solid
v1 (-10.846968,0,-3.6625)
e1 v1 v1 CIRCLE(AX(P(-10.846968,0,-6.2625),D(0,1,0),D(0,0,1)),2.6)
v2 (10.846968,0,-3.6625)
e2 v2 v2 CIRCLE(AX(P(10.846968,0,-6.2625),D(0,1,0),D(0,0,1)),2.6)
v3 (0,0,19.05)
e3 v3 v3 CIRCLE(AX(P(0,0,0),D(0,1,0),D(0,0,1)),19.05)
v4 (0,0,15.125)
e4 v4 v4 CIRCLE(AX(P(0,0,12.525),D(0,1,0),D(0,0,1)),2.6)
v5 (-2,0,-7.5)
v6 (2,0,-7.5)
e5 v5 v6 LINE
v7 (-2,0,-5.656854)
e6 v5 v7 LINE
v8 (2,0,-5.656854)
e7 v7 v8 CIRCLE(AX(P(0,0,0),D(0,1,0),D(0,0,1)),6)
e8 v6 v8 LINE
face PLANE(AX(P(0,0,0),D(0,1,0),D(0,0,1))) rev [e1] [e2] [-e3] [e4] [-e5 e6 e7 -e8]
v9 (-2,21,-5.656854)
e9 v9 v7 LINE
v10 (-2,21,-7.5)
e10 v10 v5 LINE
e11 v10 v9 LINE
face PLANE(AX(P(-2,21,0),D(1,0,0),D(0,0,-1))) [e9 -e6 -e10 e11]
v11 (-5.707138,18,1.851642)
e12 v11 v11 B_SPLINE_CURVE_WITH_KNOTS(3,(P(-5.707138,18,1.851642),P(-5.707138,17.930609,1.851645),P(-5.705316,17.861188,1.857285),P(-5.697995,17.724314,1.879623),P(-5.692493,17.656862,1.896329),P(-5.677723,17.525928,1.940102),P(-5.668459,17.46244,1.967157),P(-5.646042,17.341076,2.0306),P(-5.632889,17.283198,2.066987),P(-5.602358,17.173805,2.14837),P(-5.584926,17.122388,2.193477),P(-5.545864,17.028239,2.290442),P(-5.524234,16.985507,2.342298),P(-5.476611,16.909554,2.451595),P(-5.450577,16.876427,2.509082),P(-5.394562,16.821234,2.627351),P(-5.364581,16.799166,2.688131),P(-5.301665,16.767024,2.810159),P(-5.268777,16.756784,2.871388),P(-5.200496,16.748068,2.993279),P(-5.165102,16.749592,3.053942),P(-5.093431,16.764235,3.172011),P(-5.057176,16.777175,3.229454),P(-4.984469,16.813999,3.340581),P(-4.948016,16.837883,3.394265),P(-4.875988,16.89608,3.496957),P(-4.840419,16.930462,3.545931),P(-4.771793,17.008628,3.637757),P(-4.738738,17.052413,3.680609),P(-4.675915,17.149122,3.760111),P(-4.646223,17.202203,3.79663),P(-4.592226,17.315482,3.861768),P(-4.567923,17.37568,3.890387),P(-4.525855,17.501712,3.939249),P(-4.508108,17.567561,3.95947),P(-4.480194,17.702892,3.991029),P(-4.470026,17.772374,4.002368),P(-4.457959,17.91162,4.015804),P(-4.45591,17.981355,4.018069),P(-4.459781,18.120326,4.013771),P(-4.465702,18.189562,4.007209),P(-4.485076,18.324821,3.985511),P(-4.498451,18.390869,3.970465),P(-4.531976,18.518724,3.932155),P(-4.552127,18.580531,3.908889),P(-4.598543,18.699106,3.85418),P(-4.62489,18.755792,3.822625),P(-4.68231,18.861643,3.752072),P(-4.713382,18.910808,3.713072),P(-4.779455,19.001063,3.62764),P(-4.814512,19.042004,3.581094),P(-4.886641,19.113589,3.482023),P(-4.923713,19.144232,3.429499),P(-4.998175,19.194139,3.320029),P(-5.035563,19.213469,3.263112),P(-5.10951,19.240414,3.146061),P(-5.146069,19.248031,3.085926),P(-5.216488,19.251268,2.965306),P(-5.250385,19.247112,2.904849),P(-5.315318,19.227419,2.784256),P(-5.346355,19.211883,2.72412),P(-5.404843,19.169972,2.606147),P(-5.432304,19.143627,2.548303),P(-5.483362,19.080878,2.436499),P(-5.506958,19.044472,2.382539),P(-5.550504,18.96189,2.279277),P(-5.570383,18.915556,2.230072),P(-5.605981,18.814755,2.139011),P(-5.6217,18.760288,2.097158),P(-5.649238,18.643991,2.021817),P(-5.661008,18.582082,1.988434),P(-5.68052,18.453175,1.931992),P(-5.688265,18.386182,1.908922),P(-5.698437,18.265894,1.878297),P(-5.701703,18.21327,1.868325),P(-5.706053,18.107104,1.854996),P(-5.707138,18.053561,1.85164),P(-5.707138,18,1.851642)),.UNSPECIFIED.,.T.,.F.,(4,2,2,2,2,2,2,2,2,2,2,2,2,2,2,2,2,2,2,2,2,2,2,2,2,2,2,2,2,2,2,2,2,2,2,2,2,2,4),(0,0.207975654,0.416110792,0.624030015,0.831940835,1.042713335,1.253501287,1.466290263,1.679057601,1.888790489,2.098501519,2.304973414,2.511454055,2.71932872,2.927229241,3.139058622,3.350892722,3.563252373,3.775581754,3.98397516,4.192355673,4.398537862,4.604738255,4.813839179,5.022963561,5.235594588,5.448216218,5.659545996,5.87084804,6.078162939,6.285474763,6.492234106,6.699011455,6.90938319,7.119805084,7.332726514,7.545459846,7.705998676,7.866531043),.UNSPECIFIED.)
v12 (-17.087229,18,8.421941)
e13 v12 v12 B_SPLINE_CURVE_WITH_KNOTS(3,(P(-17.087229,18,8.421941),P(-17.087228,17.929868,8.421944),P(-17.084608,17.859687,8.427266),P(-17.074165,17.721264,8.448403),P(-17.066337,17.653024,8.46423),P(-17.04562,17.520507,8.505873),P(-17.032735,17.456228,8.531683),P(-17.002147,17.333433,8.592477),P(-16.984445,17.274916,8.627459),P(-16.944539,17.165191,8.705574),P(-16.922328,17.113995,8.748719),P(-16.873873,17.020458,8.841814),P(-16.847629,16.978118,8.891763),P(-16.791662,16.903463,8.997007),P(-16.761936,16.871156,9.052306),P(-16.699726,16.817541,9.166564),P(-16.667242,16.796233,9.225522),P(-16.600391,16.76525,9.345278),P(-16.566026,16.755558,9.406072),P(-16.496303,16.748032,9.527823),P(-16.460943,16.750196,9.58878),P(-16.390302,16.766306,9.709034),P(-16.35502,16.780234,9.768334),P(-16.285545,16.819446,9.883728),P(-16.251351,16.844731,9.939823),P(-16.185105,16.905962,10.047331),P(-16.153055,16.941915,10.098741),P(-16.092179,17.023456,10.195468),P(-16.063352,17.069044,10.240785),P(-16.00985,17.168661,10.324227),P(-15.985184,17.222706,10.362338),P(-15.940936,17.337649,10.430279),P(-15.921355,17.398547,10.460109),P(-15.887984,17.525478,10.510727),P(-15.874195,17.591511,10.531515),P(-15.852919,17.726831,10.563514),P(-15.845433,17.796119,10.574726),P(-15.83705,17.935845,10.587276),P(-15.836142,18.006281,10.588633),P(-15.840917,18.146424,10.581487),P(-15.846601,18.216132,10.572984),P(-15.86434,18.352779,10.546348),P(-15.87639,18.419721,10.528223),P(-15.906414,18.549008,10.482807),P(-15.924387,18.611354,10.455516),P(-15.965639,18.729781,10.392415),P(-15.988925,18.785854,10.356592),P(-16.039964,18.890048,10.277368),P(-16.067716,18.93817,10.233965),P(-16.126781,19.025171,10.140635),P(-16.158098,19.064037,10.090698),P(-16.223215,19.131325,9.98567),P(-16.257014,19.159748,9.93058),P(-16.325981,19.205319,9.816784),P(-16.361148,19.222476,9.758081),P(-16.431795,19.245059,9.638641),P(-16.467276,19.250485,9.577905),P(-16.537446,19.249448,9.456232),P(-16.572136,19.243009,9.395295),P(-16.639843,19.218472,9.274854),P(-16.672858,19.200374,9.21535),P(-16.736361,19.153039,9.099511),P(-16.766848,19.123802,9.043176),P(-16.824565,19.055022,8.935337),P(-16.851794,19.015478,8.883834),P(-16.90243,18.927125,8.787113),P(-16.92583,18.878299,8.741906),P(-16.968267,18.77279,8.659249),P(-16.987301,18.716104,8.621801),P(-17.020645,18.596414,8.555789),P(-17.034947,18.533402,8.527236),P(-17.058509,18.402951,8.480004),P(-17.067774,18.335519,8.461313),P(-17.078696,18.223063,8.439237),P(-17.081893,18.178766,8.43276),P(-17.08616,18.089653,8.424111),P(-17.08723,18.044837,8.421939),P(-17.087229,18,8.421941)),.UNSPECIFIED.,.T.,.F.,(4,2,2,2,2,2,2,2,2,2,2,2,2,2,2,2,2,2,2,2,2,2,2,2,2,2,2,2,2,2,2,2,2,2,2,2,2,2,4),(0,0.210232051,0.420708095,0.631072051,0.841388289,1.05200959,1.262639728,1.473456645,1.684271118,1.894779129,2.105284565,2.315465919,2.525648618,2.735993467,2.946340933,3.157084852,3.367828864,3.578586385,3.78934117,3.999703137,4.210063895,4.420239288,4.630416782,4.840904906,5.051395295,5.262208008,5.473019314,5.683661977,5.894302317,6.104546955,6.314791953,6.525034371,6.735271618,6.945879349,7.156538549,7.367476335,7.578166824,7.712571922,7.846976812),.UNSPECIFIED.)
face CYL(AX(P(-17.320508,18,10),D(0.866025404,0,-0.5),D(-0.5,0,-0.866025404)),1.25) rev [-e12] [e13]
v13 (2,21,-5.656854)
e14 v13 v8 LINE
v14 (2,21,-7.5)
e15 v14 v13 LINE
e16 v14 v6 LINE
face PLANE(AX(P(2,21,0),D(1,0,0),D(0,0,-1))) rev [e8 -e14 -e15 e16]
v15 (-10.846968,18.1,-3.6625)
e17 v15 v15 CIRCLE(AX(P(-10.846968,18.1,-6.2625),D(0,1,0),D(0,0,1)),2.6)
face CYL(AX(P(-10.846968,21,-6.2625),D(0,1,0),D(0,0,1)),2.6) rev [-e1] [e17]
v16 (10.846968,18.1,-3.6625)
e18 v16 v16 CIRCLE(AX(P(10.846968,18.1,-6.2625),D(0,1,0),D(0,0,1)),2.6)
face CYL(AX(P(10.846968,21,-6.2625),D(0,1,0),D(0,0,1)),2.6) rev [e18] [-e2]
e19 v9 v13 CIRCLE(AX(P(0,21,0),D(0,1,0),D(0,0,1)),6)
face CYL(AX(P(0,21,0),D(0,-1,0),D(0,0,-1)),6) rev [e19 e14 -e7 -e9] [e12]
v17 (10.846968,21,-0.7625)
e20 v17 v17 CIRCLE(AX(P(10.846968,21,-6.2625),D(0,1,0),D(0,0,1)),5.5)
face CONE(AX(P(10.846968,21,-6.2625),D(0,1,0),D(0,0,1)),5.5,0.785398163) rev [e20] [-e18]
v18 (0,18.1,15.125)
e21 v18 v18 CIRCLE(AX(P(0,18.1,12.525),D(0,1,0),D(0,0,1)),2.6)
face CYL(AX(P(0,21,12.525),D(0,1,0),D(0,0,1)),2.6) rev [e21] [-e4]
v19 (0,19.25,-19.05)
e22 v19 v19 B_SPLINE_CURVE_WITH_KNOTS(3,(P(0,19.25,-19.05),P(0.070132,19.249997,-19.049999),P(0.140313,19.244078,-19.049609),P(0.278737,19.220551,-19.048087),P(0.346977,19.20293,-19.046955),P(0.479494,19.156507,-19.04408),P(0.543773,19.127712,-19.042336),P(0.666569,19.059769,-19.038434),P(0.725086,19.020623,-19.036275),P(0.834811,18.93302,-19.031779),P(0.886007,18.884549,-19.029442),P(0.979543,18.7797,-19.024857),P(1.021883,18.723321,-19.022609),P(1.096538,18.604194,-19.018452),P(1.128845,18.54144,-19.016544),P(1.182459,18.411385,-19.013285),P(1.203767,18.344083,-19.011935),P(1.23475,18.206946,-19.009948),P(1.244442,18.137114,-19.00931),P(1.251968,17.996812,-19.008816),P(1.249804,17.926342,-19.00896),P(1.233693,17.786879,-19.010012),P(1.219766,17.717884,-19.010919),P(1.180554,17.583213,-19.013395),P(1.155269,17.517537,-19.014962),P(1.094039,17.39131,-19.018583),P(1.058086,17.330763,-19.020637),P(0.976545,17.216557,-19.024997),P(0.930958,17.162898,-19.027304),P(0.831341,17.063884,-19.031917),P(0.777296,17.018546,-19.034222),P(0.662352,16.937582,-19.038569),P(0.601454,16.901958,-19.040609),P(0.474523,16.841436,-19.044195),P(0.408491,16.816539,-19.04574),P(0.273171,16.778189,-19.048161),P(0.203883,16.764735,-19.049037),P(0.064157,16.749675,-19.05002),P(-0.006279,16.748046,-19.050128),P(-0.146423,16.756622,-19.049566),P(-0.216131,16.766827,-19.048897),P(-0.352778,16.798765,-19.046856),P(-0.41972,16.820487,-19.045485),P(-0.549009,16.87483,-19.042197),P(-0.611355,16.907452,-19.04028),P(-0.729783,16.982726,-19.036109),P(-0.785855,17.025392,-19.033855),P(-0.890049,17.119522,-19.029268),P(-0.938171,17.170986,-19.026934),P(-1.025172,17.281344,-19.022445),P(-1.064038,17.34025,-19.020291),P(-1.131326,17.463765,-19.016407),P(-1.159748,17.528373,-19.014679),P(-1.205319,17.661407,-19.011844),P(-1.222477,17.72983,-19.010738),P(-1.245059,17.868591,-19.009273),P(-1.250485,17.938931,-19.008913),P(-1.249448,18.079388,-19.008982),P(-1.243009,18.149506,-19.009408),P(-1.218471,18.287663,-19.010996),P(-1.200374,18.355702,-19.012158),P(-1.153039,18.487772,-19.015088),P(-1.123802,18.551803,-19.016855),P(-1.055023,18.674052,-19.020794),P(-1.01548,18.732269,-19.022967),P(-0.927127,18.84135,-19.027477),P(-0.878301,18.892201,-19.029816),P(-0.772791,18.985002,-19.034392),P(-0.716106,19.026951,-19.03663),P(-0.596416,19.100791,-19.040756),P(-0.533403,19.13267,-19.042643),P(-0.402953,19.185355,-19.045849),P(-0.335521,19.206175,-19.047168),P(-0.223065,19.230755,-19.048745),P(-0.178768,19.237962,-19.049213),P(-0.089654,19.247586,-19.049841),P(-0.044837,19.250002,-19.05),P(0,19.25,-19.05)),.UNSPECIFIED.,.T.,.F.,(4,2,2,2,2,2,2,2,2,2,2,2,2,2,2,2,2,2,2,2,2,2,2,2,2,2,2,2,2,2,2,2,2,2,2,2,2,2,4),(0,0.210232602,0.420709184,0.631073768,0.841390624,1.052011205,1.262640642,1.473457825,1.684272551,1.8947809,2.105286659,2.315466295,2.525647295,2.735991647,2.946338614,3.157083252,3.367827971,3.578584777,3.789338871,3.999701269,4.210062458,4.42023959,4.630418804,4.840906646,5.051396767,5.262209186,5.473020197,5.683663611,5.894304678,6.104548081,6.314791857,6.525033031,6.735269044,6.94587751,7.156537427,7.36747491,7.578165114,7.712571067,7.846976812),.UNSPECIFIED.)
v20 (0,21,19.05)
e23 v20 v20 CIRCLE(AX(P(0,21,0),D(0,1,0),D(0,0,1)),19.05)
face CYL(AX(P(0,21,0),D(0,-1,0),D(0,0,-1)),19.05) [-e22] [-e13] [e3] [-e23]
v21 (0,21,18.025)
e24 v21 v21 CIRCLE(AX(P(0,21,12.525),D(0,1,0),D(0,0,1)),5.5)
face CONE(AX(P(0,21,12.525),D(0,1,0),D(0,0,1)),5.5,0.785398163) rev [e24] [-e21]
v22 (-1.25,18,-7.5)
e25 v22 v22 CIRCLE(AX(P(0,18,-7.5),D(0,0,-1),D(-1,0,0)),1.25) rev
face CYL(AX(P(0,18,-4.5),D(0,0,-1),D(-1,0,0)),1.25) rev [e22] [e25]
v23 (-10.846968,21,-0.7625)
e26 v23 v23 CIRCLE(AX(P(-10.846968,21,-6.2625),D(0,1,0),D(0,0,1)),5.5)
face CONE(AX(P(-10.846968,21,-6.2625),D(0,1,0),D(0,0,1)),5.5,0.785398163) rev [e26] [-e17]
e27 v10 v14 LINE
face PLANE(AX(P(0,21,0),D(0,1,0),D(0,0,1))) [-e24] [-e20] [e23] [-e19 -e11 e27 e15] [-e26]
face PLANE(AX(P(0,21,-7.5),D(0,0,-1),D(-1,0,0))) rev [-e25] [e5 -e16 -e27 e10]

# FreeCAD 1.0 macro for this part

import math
import FreeCAD as App
import Part
import Sketcher
from FreeCAD import Vector

doc = App.newDocument("Part")
body = doc.addObject("PartDesign::Body", "Body")

sketch1 = body.newObject("Sketcher::SketchObject", "Sketch")
sketch1.AttachmentSupport = (doc.getObject("XZ_Plane"), [""])
sketch1.MapMode = "FlatFace"
sketch1.addGeometry(Part.Circle(Vector(0, 0, 0), Vector(0, 0, 1), 19.05), False)
sketch1.addGeometry(Part.ArcOfCircle(Part.Circle(Vector(0, 0, 0), Vector(0, 0, 1), 6), math.radians(0), math.radians(250.528779)), False)
sketch1.addGeometry(Part.LineSegment(Vector(-2, -5.656854, 0), Vector(-2, -7.5, 0)), False)
sketch1.addGeometry(Part.LineSegment(Vector(-2, -7.5, 0), Vector(2, -7.5, 0)), False)
sketch1.addGeometry(Part.LineSegment(Vector(2, -7.5, 0), Vector(2, -5.656854, 0)), False)
sketch1.addGeometry(Part.ArcOfCircle(Part.Circle(Vector(0, 0, 0), Vector(0, 0, 1), 6), math.radians(-70.528779), math.radians(0)), False)
sketch1.addConstraint(Sketcher.Constraint("Coincident", 1, 2, 2, 1))
sketch1.addConstraint(Sketcher.Constraint("Coincident", 2, 2, 3, 1))
sketch1.addConstraint(Sketcher.Constraint("Coincident", 3, 2, 4, 1))
sketch1.addConstraint(Sketcher.Constraint("Coincident", 4, 2, 5, 1))
sketch1.addConstraint(Sketcher.Constraint("Tangent", 5, 2, 1, 1))
sketch1.addConstraint(Sketcher.Constraint("Vertical", 2))
sketch1.addConstraint(Sketcher.Constraint("Horizontal", 3))
sketch1.addConstraint(Sketcher.Constraint("Vertical", 4))
sketch1.addConstraint(Sketcher.Constraint("Coincident", 0, 3, -1, 1))
sketch1.addConstraint(Sketcher.Constraint("Coincident", 1, 3, -1, 1))
sketch1.addConstraint(Sketcher.Constraint("Equal", 1, 5))
sketch1.addConstraint(Sketcher.Constraint("PointOnObject", 5, 2, -1))
sketch1.addConstraint(Sketcher.Constraint("Horizontal", 1, 2, 4, 2))
sketch1.addConstraint(Sketcher.Constraint("Radius", 1, 6.0))
sketch1.addConstraint(Sketcher.Constraint("Diameter", 0, 38.1))
sketch1.addConstraint(Sketcher.Constraint("DistanceX", 3, 1, 3, 2, 4.0))
sketch1.addConstraint(Sketcher.Constraint("DistanceY", 2, 2, -1, 1, 7.5))
pad1 = body.newObject("PartDesign::Pad", "Pad")
pad1.Profile = sketch1
pad1.Length = 21
pad1.Reversed = True

sketch2 = body.newObject("Sketcher::SketchObject", "Sketch001")
sketch2.AttachmentSupport = (doc.getObject("XY_Plane"), [""])
sketch2.MapMode = "FlatFace"
sketch2.AttachmentOffset = App.Placement(Vector(0, 0, -7.5), App.Rotation())
sketch2.addGeometry(Part.Circle(Vector(0, 18, 0), Vector(0, 0, 1), 1.25), False)
sketch2.addConstraint(Sketcher.Constraint("PointOnObject", 0, 3, -2))
sketch2.addConstraint(Sketcher.Constraint("Diameter", 0, 2.5))
sketch2.addConstraint(Sketcher.Constraint("DistanceY", -1, 1, 0, 3, 18.0))
pocket1 = body.newObject("PartDesign::Pocket", "Pocket")
pocket1.Profile = sketch2
pocket1.Type = "TwoLengths"
pocket1.Length = 3
pocket1.Length2 = 15
pocket1.Reversed = True

sketch3 = body.newObject("Sketcher::SketchObject", "Sketch002")
sketch3.Placement = App.Placement(Vector(0, 0, 0), App.Rotation(Vector(0, -1, 0), Vector(0.5, 0, 0.866025404), Vector(-0.866025404, 0, 0.5), "ZXY"))
sketch3.addGeometry(Part.Circle(Vector(-18, 0, 0), Vector(0, 0, 1), 1.25), False)
sketch3.addConstraint(Sketcher.Constraint("PointOnObject", 0, 3, -1))
sketch3.addConstraint(Sketcher.Constraint("Diameter", 0, 2.5))
sketch3.addConstraint(Sketcher.Constraint("DistanceX", 0, 3, -1, 1, 18.0))
pocket2 = body.newObject("PartDesign::Pocket", "Pocket001")
pocket2.Profile = sketch3
pocket2.Length = 20
pocket2.Reversed = True

sketch4 = body.newObject("Sketcher::SketchObject", "Sketch003")
sketch4.AttachmentSupport = (doc.getObject("XZ_Plane"), [""])
sketch4.MapMode = "FlatFace"
sketch4.AttachmentOffset = App.Placement(Vector(0, 0, -21), App.Rotation())
sketch4.addGeometry(Part.Circle(Vector(10.846968, -6.2625, 0), Vector(0, 0, 1), 2.6), False)
sketch4.addGeometry(Part.Circle(Vector(0, 12.525, 0), Vector(0, 0, 1), 2.6), False)
sketch4.addGeometry(Part.Circle(Vector(-10.846968, -6.2625, 0), Vector(0, 0, 1), 2.6), False)
sketch4.addGeometry(Part.Circle(Vector(0, 0, 0), Vector(0, 0, 1), 2.6), False)
sketch4.addConstraint(Sketcher.Constraint("Coincident", 3, 3, -1, 1))
sketch4.addConstraint(Sketcher.Constraint("Equal", 0, 1))
sketch4.addConstraint(Sketcher.Constraint("Equal", 1, 2))
sketch4.addConstraint(Sketcher.Constraint("Equal", 2, 3))
sketch4.addConstraint(Sketcher.Constraint("Symmetric", 0, 3, 2, 3, -2))
sketch4.addConstraint(Sketcher.Constraint("PointOnObject", 1, 3, -2))
sketch4.addConstraint(Sketcher.Constraint("Diameter", 0, 5.2))
sketch4.addConstraint(Sketcher.Constraint("DistanceY", -1, 1, 1, 3, 12.525))
sketch4.addConstraint(Sketcher.Constraint("DistanceY", 0, 3, -1, 1, 6.2625))
sketch4.addConstraint(Sketcher.Constraint("DistanceX", -1, 1, 0, 3, 10.846968))
doc.recompute()
hole = body.newObject("PartDesign::Hole", "Hole")
hole.Profile = sketch4
hole.ThreadType = "None"
hole.Diameter = 5.2
hole.DepthType = "ThroughAll"
hole.HoleCutType = "Countersink"
hole.HoleCutDiameter = 11
hole.HoleCutCountersinkAngle = 90
hole.Reversed = True

doc.recompute()
